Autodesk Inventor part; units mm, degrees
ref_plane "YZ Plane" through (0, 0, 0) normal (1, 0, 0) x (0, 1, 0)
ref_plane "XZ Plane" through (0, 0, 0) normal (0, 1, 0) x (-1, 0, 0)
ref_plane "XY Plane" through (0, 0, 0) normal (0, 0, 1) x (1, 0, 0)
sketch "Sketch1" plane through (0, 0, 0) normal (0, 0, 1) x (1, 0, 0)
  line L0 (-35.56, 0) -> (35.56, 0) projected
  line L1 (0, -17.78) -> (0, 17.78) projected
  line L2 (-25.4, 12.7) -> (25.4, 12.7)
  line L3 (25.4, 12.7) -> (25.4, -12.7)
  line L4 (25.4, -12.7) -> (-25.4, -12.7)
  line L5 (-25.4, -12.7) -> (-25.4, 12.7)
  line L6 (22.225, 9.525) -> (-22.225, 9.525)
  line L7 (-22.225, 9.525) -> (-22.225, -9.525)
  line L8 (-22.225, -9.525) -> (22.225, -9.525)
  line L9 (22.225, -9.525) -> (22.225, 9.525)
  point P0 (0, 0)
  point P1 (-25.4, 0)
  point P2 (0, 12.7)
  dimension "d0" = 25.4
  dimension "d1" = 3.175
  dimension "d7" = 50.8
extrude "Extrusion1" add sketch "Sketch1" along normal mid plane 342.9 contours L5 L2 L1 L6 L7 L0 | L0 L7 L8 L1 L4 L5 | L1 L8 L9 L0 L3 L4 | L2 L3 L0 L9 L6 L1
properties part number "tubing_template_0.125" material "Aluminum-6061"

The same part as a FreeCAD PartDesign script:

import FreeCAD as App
import Part
import Sketcher

V = App.Vector
Q = App.Units.Quantity

doc = App.newDocument("Part")
body = doc.addObject("PartDesign::Body", "Body")

# Sketch on XY plane
sketch1 = body.newObject("Sketcher::SketchObject", "Sketch")
sketch1.AttachmentSupport = (doc.getObject("XY_Plane"), [""])
sketch1.MapMode = "FlatFace"
sketch1.addGeometry(Part.LineSegment(V(-25, 13, 0), V(-25, -13, 0)), False)
sketch1.addGeometry(Part.LineSegment(V(-25, -13, 0), V(25, -13, 0)), False)
sketch1.addGeometry(Part.LineSegment(V(25, -13, 0), V(25, 13, 0)), False)
sketch1.addGeometry(Part.LineSegment(V(25, 13, 0), V(-25, 13, 0)), False)
sketch1.addGeometry(Part.LineSegment(V(-22, 10, 0), V(22, 10, 0)), False)
sketch1.addGeometry(Part.LineSegment(V(22, 10, 0), V(22, -10, 0)), False)
sketch1.addGeometry(Part.LineSegment(V(22, -10, 0), V(-22, -10, 0)), False)
sketch1.addGeometry(Part.LineSegment(V(-22, -10, 0), V(-22, 10, 0)), False)
sketch1.addConstraint(Sketcher.Constraint("Coincident", 0, 2, 1, 1))
sketch1.addConstraint(Sketcher.Constraint("Coincident", 1, 2, 2, 1))
sketch1.addConstraint(Sketcher.Constraint("Coincident", 2, 2, 3, 1))
sketch1.addConstraint(Sketcher.Constraint("Coincident", 3, 2, 0, 1))
sketch1.addConstraint(Sketcher.Constraint("Coincident", 4, 2, 5, 1))
sketch1.addConstraint(Sketcher.Constraint("Coincident", 5, 2, 6, 1))
sketch1.addConstraint(Sketcher.Constraint("Coincident", 6, 2, 7, 1))
sketch1.addConstraint(Sketcher.Constraint("Coincident", 7, 2, 4, 1))
sketch1.addConstraint(Sketcher.Constraint("Vertical", 0))
sketch1.addConstraint(Sketcher.Constraint("Horizontal", 1))
sketch1.addConstraint(Sketcher.Constraint("Vertical", 2))
sketch1.addConstraint(Sketcher.Constraint("Horizontal", 3))
sketch1.addConstraint(Sketcher.Constraint("Horizontal", 4))
sketch1.addConstraint(Sketcher.Constraint("Vertical", 5))
sketch1.addConstraint(Sketcher.Constraint("Horizontal", 6))
sketch1.addConstraint(Sketcher.Constraint("Vertical", 7))
sketch1.addConstraint(Sketcher.Constraint("Symmetric", 0, 2, 2, 2, -1, 1))
sketch1.addConstraint(Sketcher.Constraint("Symmetric", 4, 2, 6, 2, -1, 1))
sketch1.addConstraint(Sketcher.Constraint("DistanceX", 1, 1, 1, 2, Q("2 in")))
sketch1.addConstraint(Sketcher.Constraint("DistanceY", 0, 2, 0, 1, Q("1 in")))
sketch1.addConstraint(Sketcher.Constraint("DistanceX", 4, 2, 2, 2, Q("0.125 in")))
sketch1.addConstraint(Sketcher.Constraint("DistanceY", 4, 2, 2, 2, Q("0.125 in")))
pad1 = body.newObject("PartDesign::Pad", "Pad")
pad1.Profile = sketch1
pad1.Length = Q("13.5 in")
pad1.Midplane = True

doc.recompute()
